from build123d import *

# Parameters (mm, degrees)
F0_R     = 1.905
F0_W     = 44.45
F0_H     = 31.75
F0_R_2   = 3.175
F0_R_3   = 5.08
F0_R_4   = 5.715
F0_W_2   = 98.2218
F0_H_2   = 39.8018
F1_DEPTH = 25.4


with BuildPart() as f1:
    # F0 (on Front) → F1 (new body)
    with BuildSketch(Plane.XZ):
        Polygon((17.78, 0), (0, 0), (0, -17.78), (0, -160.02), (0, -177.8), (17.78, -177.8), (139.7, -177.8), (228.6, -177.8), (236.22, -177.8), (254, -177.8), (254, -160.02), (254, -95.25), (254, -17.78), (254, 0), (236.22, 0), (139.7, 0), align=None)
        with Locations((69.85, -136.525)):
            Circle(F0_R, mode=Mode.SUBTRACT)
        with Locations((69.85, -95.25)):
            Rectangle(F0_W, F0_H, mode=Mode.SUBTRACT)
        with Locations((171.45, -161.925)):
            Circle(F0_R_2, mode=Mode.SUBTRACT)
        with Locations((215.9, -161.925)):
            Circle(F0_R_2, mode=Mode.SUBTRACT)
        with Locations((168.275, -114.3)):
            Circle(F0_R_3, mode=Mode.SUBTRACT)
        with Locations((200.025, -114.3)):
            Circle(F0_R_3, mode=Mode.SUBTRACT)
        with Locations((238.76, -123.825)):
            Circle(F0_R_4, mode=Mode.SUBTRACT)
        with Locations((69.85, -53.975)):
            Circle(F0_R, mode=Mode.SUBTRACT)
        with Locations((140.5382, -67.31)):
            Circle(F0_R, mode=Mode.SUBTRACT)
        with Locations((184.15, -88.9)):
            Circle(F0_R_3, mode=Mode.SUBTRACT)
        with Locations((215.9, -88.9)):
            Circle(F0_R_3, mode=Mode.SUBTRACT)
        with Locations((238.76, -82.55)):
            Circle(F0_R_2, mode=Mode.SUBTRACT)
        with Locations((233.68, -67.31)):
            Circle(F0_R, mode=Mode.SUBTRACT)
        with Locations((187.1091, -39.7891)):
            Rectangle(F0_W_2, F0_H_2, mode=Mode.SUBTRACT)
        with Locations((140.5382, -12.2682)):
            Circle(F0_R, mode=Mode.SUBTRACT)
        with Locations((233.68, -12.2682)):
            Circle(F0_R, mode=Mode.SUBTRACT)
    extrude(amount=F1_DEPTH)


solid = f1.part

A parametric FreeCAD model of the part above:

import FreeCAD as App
import Part
import Sketcher

V = App.Vector
Q = App.Units.Quantity

doc = App.newDocument("Part")
body = doc.addObject("PartDesign::Body", "Body")

sketch1 = doc.addObject("Sketcher::SketchObject", "Sketch")
body.addObject(sketch1)
sketch1.AttachmentSupport = (doc.XZ_Plane, [""])
sketch1.MapMode = "FlatFace"
sketch1.addGeometry([
    Part.LineSegment(V(0, 0, 0), V(0, -177.8, 0)),
    Part.LineSegment(V(0, -177.8, 0), V(254, -177.8, 0)),
    Part.LineSegment(V(254, -177.8, 0), V(254, 0, 0)),
    Part.LineSegment(V(254, 0, 0), V(0, 0, 0)),
    Part.Circle(V(69.85, -136.525, 0), V(0, 0, 1), 1.905),
    Part.LineSegment(V(92.075, -111.125, 0), V(47.625, -111.125, 0)),
    Part.LineSegment(V(47.625, -111.125, 0), V(47.625, -79.375, 0)),
    Part.LineSegment(V(47.625, -79.375, 0), V(92.075, -79.375, 0)),
    Part.LineSegment(V(92.075, -79.375, 0), V(92.075, -111.125, 0)),
    Part.Circle(V(171.45, -161.925, 0), V(0, 0, 1), 3.175),
    Part.Circle(V(215.9, -161.925, 0), V(0, 0, 1), 3.175),
    Part.Circle(V(168.275, -114.3, 0), V(0, 0, 1), 5.08),
    Part.Circle(V(184.15, -88.9, 0), V(0, 0, 1), 5.08),
    Part.Circle(V(200.025, -114.3, 0), V(0, 0, 1), 5.08),
    Part.Circle(V(238.76, -123.825, 0), V(0, 0, 1), 5.715),
    Part.Circle(V(215.9, -88.9, 0), V(0, 0, 1), 5.08),
    Part.Circle(V(69.85, -53.975, 0), V(0, 0, 1), 1.905),
    Part.Circle(V(140.5382, -67.31, 0), V(0, 0, 1), 1.905),
    Part.Circle(V(140.5382, -12.2682, 0), V(0, 0, 1), 1.905),
    Part.Circle(V(238.76, -82.55, 0), V(0, 0, 1), 3.175),
    Part.Circle(V(233.68, -67.31, 0), V(0, 0, 1), 1.905),
    Part.LineSegment(V(236.22, -59.69, 0), V(137.9982, -59.69, 0)),
    Part.LineSegment(V(137.9982, -59.69, 0), V(137.9982, -19.8882, 0)),
    Part.LineSegment(V(137.9982, -19.8882, 0), V(236.22, -19.8882, 0)),
    Part.LineSegment(V(236.22, -19.8882, 0), V(236.22, -59.69, 0)),
    Part.Circle(V(233.68, -12.2682, 0), V(0, 0, 1), 1.905),
], False)
sketch1.addConstraint([
    Sketcher.Constraint("Coincident", 0, 2, 1, 1),
    Sketcher.Constraint("Coincident", 1, 2, 2, 1),
    Sketcher.Constraint("Coincident", 2, 2, 3, 1),
    Sketcher.Constraint("Coincident", 3, 2, 0, 1),
    Sketcher.Constraint("Coincident", 5, 2, 6, 1),
    Sketcher.Constraint("Coincident", 6, 2, 7, 1),
    Sketcher.Constraint("Coincident", 7, 2, 8, 1),
    Sketcher.Constraint("Coincident", 8, 2, 5, 1),
    Sketcher.Constraint("Coincident", 21, 2, 22, 1),
    Sketcher.Constraint("Coincident", 22, 2, 23, 1),
    Sketcher.Constraint("Coincident", 23, 2, 24, 1),
    Sketcher.Constraint("Coincident", 24, 2, 21, 1),
    Sketcher.Constraint("Vertical", 0),
    Sketcher.Constraint("Horizontal", 1),
    Sketcher.Constraint("Vertical", 2),
    Sketcher.Constraint("Horizontal", 3),
    Sketcher.Constraint("Horizontal", 5),
    Sketcher.Constraint("Vertical", 6),
    Sketcher.Constraint("Horizontal", 7),
    Sketcher.Constraint("Vertical", 8),
    Sketcher.Constraint("Horizontal", 21),
    Sketcher.Constraint("Vertical", 22),
    Sketcher.Constraint("Horizontal", 23),
    Sketcher.Constraint("Vertical", 24),
    Sketcher.Constraint("Coincident", 3, 2, -1, 1),
    Sketcher.Constraint("Equal", 9, 10),
    Sketcher.Constraint("Equal", 11, 12),
    Sketcher.Constraint("Equal", 12, 13),
    Sketcher.Constraint("Equal", 13, 15),
    Sketcher.Constraint("Equal", 4, 16),
    Sketcher.Constraint("Equal", 16, 17),
    Sketcher.Constraint("Equal", 17, 18),
    Sketcher.Constraint("Equal", 10, 19),
    Sketcher.Constraint("Equal", 18, 20),
    Sketcher.Constraint("Equal", 20, 25),
    Sketcher.Constraint("Horizontal", 9, 3, 10, 3),
    Sketcher.Constraint("Horizontal", 11, 3, 13, 3),
    Sketcher.Constraint("Horizontal", 12, 3, 15, 3),
    Sketcher.Constraint("Horizontal", 17, 3, 20, 3),
    Sketcher.Constraint("Horizontal", 18, 3, 25, 3),
    Sketcher.Constraint("Vertical", 10, 3, 15, 3),
    Sketcher.Constraint("Vertical", 4, 3, 16, 3),
    Sketcher.Constraint("Vertical", 17, 3, 18, 3),
    Sketcher.Constraint("Vertical", 14, 3, 19, 3),
    Sketcher.Constraint("Vertical", 20, 3, 25, 3),
    Sketcher.Constraint("Diameter", 11, Q("0.4 in")),
    Sketcher.Constraint("Diameter", 4, Q("0.15 in")),
    Sketcher.Constraint("Diameter", 9, Q("0.25 in")),
    Sketcher.Constraint("Diameter", 14, Q("0.45 in")),
    Sketcher.Constraint("DistanceX", 1, 1, 1, 2, Q("10 in")),
    Sketcher.Constraint("DistanceY", 0, 2, 0, 1, Q("7 in")),
    Sketcher.Constraint("DistanceX", 4, 3, 9, 3, Q("4 in")),
    Sketcher.Constraint("DistanceY", 9, 3, 4, 3, Q("1 in")),
    Sketcher.Constraint("DistanceY", 11, 3, 12, 3, Q("1 in")),
    Sketcher.Constraint("DistanceY", 4, 3, 5, 2, Q("1 in")),
    Sketcher.Constraint("DistanceY", 6, 2, 16, 3, Q("1 in")),
    Sketcher.Constraint("DistanceX", 5, 2, 5, 1, Q("1.75 in")),
    Sketcher.Constraint("DistanceY", 6, 1, 6, 2, Q("1.25 in")),
    Sketcher.Constraint("DistanceX", -1, 1, 10, 3, Q("8.5 in")),
    Sketcher.Constraint("DistanceY", 11, 3, -1, 1, Q("4.5 in")),
    Sketcher.Constraint("DistanceX", -1, 1, 14, 3, Q("9.4 in")),
    Sketcher.Constraint("DistanceX", -1, 1, 20, 3, Q("9.2 in")),
    Sketcher.Constraint("DistanceX", -1, 1, 23, 2, Q("9.3 in")),
    Sketcher.Constraint("DistanceX", 9, 3, 12, 3, Q("0.5 in")),
    Sketcher.Constraint("DistanceY", 10, 3, 14, 3, Q("1.5 in")),
    Sketcher.Constraint("DistanceY", 19, 3, 20, 3, Q("0.6 in")),
    Sketcher.Constraint("DistanceX", 21, 2, 17, 3, Q("0.1 in")),
    Sketcher.Constraint("DistanceY", 17, 3, 21, 2, Q("0.3 in")),
    Sketcher.Constraint("DistanceY", 22, 2, 18, 3, Q("0.3 in")),
    Sketcher.Constraint("DistanceX", 21, 2, 21, 1, Q("3.867 in")),
    Sketcher.Constraint("DistanceY", 22, 1, 22, 2, Q("1.567 in")),
    Sketcher.Constraint("DistanceX", -1, 1, 4, 3, Q("2.75 in")),
    Sketcher.Constraint("DistanceY", 17, 3, -1, 1, Q("2.65 in")),
    Sketcher.Constraint("DistanceX", 11, 3, 13, 3, Q("1.25 in")),
    Sketcher.Constraint("DistanceX", 5, 2, 11, 3, Q("4.75 in")),
    Sketcher.Constraint("DistanceY", 4, 3, -1, 1, Q("5.375 in")),
    Sketcher.Constraint("DistanceX", -1, 1, 11, 3, Q("6.625 in")),
])
pad1 = doc.addObject("PartDesign::Pad", "Pad")
body.addObject(pad1)
pad1.Profile = sketch1
pad1.Length = Q("1 in")

doc.recompute()
